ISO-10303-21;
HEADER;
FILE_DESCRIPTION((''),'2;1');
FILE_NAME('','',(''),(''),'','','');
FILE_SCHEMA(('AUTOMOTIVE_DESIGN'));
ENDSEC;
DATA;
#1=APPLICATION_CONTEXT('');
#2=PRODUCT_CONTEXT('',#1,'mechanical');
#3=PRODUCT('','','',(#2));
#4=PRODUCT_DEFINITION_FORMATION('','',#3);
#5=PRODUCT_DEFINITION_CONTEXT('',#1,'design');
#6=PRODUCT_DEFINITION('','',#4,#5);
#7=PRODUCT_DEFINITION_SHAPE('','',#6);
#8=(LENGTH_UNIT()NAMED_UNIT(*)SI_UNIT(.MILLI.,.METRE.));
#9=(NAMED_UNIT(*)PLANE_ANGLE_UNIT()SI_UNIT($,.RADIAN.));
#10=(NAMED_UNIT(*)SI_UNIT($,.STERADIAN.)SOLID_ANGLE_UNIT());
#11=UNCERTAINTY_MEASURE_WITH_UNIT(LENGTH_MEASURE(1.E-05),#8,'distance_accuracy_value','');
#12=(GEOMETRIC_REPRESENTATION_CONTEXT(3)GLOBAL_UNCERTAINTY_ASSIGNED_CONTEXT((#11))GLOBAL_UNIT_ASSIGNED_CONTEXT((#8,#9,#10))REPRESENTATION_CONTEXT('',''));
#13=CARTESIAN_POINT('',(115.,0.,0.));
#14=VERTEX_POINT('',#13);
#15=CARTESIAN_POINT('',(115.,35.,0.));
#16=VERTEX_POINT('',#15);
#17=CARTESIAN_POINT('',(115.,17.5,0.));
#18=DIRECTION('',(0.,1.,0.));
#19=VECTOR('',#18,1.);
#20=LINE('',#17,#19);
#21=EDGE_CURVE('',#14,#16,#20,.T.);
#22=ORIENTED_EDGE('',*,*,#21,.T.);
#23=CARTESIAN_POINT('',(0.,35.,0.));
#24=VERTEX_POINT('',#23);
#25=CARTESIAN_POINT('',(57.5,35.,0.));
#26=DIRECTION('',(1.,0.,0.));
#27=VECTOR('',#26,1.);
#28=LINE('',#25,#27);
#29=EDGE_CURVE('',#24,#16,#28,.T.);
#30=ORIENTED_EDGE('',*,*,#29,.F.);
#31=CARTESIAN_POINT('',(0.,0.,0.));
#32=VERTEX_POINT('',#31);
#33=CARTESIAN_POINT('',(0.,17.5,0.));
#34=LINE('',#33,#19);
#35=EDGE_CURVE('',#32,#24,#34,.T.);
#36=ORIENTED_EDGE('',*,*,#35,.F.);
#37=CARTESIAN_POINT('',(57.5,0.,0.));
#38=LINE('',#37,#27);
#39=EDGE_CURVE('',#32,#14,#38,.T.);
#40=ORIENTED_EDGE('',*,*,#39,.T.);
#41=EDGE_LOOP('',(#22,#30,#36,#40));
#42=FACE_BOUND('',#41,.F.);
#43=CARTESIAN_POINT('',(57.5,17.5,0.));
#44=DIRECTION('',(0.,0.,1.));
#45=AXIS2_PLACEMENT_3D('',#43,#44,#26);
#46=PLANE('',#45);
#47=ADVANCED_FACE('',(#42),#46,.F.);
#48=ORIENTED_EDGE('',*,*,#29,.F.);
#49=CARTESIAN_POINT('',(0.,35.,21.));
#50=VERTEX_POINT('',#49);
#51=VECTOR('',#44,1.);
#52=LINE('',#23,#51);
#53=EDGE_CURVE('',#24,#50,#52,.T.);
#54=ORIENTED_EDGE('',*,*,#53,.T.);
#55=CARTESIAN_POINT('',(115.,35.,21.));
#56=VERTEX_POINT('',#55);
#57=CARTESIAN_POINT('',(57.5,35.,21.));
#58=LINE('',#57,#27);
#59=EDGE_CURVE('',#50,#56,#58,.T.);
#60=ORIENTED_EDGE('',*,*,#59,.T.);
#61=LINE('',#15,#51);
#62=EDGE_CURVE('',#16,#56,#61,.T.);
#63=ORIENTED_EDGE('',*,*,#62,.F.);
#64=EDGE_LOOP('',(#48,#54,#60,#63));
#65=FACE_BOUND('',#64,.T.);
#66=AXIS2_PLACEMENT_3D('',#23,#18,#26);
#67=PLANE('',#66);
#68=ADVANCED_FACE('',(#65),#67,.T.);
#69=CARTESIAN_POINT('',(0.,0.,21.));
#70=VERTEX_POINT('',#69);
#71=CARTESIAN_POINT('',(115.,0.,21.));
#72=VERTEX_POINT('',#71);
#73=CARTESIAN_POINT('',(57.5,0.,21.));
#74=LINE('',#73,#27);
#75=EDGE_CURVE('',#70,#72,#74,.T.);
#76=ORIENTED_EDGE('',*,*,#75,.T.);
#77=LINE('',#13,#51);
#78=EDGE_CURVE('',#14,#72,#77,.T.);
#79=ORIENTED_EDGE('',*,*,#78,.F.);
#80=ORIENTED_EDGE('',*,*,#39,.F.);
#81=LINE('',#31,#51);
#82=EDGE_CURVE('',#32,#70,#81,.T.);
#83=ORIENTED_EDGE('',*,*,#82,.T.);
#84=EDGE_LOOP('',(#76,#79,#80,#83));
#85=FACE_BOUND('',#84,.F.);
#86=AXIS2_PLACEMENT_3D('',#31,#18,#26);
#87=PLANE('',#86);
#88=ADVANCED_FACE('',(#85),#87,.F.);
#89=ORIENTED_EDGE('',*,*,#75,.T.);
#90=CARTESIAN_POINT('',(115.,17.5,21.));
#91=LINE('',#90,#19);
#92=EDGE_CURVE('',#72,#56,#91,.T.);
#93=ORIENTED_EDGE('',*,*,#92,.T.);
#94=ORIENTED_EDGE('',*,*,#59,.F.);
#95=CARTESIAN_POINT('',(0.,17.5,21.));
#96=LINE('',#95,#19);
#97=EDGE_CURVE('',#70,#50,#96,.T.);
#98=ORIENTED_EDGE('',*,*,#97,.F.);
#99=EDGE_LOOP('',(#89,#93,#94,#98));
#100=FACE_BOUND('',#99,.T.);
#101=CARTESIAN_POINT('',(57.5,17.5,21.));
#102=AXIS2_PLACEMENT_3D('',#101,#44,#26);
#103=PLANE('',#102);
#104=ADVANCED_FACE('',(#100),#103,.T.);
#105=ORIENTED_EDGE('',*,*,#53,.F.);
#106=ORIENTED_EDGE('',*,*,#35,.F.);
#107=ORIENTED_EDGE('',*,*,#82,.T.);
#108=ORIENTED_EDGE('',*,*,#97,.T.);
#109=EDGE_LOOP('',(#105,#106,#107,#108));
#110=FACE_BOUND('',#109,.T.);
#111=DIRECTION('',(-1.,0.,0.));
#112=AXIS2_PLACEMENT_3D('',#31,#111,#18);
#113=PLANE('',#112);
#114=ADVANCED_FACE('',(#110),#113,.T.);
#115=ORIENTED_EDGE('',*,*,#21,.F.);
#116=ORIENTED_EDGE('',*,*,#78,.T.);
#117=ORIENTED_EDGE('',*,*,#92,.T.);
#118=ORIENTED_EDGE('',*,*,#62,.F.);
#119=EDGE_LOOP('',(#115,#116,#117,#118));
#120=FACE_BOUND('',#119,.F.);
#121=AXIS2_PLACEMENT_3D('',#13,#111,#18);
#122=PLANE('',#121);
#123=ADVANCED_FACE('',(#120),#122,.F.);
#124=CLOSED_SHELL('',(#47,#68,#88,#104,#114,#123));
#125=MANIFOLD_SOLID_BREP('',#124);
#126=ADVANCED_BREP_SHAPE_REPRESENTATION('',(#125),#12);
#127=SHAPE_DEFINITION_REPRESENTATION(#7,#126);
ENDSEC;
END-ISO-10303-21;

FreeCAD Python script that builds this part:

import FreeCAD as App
import Part
import Sketcher
from FreeCAD import Vector
Q = App.Units.Quantity

doc = App.newDocument("Part")
params = doc.addObject("Spreadsheet::Sheet", "Params")
for row, (alias, value) in enumerate([
    ("sketch1_width", "115 mm"),
    ("sketch1_height", "35 mm"),
    ("pad1_length", "21 mm"),
], start=1):
    params.set(f"A{row}", alias)
    params.set(f"B{row}", "=" + value)
    params.setAlias(f"B{row}", alias)

body = doc.addObject("PartDesign::Body", "Body")

sketch1 = body.newObject("Sketcher::SketchObject", "Sketch")
sketch1.AttachmentSupport = (doc.getObject("XY_Plane"), [""])
sketch1.MapMode = "FlatFace"
sketch1.addGeometry(Part.LineSegment(Vector(0, 35, 0), Vector(0, 0, 0)), False)
sketch1.addGeometry(Part.LineSegment(Vector(0, 0, 0), Vector(115, 0, 0)), False)
sketch1.addGeometry(Part.LineSegment(Vector(115, 0, 0), Vector(115, 35, 0)), False)
sketch1.addGeometry(Part.LineSegment(Vector(115, 35, 0), Vector(0, 35, 0)), False)
sketch1.addConstraint(Sketcher.Constraint("Coincident", 0, 2, 1, 1))
sketch1.addConstraint(Sketcher.Constraint("Coincident", 1, 2, 2, 1))
sketch1.addConstraint(Sketcher.Constraint("Coincident", 2, 2, 3, 1))
sketch1.addConstraint(Sketcher.Constraint("Coincident", 3, 2, 0, 1))
sketch1.addConstraint(Sketcher.Constraint("Vertical", 0))
sketch1.addConstraint(Sketcher.Constraint("Horizontal", 1))
sketch1.addConstraint(Sketcher.Constraint("Vertical", 2))
sketch1.addConstraint(Sketcher.Constraint("Horizontal", 3))
sketch1.addConstraint(Sketcher.Constraint("Coincident", 0, 2, -1, 1))
sketch1.addConstraint(Sketcher.Constraint("DistanceX", 1, 1, 1, 2, Q("115 mm")))
sketch1.addConstraint(Sketcher.Constraint("DistanceY", 0, 2, 0, 1, Q("35 mm")))
sketch1.setExpression("Constraints[9]", "Params.sketch1_width")
sketch1.setExpression("Constraints[10]", "Params.sketch1_height")
pad1 = body.newObject("PartDesign::Pad", "Pad")
pad1.Profile = sketch1
pad1.setExpression("Length", "Params.pad1_length")

doc.recompute()
